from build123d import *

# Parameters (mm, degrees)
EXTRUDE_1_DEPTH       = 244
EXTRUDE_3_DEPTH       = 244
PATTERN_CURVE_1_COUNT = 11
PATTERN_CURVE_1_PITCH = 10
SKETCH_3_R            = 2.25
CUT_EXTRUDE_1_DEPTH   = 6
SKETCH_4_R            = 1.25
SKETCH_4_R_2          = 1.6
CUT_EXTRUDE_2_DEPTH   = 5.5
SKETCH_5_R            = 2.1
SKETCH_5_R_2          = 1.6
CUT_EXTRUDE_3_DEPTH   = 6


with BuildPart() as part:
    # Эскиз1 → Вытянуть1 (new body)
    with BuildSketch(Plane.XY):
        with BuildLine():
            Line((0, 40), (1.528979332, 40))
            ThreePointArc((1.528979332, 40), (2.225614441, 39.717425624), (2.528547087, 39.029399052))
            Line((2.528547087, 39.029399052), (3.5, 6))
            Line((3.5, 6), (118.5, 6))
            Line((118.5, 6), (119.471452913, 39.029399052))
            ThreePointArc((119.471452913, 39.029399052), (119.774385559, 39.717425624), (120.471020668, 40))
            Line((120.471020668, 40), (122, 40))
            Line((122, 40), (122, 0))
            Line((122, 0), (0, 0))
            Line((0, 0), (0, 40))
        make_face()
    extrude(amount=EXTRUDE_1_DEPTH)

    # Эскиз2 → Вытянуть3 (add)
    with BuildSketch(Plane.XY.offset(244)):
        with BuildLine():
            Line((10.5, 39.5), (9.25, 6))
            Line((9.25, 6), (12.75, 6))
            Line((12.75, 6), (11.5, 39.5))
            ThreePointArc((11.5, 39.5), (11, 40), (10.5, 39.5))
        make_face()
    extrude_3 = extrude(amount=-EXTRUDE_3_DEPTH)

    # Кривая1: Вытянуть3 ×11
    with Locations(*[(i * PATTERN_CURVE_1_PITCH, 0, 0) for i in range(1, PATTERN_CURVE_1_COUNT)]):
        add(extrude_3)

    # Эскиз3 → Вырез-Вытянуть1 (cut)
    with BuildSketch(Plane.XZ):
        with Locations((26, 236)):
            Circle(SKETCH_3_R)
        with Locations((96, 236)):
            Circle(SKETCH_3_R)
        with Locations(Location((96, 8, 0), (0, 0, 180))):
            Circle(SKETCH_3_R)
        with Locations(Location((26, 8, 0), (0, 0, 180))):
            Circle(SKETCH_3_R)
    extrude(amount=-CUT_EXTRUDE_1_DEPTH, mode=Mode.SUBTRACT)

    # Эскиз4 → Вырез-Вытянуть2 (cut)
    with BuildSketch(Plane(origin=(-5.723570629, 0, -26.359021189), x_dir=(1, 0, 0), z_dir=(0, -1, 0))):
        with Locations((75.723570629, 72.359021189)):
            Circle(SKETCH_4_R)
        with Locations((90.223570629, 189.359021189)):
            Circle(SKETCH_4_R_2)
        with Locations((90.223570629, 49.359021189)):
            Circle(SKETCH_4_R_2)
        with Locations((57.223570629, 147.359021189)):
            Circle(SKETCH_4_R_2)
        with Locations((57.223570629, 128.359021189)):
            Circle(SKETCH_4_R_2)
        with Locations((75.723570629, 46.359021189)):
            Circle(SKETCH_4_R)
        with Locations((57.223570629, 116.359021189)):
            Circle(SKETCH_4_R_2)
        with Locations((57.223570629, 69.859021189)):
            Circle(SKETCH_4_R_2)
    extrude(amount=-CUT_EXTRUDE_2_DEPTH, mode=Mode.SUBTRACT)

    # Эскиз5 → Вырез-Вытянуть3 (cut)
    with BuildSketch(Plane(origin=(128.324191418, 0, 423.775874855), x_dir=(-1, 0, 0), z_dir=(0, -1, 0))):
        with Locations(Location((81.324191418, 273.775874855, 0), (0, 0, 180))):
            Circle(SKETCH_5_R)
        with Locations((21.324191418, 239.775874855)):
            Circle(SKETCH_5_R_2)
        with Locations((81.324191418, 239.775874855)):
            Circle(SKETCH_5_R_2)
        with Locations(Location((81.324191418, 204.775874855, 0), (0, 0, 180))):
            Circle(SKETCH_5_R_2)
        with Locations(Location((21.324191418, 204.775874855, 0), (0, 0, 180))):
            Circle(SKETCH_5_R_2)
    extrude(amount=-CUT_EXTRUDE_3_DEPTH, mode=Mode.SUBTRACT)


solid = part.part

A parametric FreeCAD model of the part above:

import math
import FreeCAD as App
import Part
import Sketcher

V = App.Vector
Q = App.Units.Quantity

doc = App.newDocument("Part")
body = doc.addObject("PartDesign::Body", "Body")

sketch1 = body.newObject("Sketcher::SketchObject", "Sketch")
sketch1.AttachmentSupport = (doc.getObject("XY_Plane"), [""])
sketch1.MapMode = "FlatFace"
sketch1.addGeometry(Part.LineSegment(V(1.5, 40, 0), V(0, 40, 0)), False)
sketch1.addGeometry(Part.LineSegment(V(0, 40, 0), V(0, 0, 0)), False)
sketch1.addGeometry(Part.LineSegment(V(0, 0, 0), V(122, 0, 0)), False)
sketch1.addGeometry(Part.LineSegment(V(122, 0, 0), V(122, 40, 0)), False)
sketch1.addGeometry(Part.LineSegment(V(122, 40, 0), V(120.5, 40, 0)), False)
sketch1.addGeometry(Part.ArcOfCircle(Part.Circle(V(120.5, 39, 0), V(0, 0, 1), 1), math.radians(90), math.radians(178)), False)
sketch1.addGeometry(Part.LineSegment(V(119.5, 39, 0), V(118.5, 6, 0)), False)
sketch1.addGeometry(Part.LineSegment(V(118.5, 6, 0), V(3.5, 6, 0)), False)
sketch1.addGeometry(Part.LineSegment(V(3.5, 6, 0), V(2.5, 39, 0)), False)
sketch1.addGeometry(Part.ArcOfCircle(Part.Circle(V(1.5, 39, 0), V(0, 0, 1), 1), math.radians(2), math.radians(90)), False)
sketch1.addConstraint(Sketcher.Constraint("Coincident", 0, 2, 1, 1))
sketch1.addConstraint(Sketcher.Constraint("Coincident", 1, 2, 2, 1))
sketch1.addConstraint(Sketcher.Constraint("Coincident", 2, 2, 3, 1))
sketch1.addConstraint(Sketcher.Constraint("Coincident", 3, 2, 4, 1))
sketch1.addConstraint(Sketcher.Constraint("Tangent", 4, 2, 5, 1))
sketch1.addConstraint(Sketcher.Constraint("Tangent", 5, 2, 6, 1))
sketch1.addConstraint(Sketcher.Constraint("Coincident", 6, 2, 7, 1))
sketch1.addConstraint(Sketcher.Constraint("Coincident", 7, 2, 8, 1))
sketch1.addConstraint(Sketcher.Constraint("Tangent", 8, 2, 9, 1))
sketch1.addConstraint(Sketcher.Constraint("Tangent", 9, 2, 0, 1))
sketch1.addConstraint(Sketcher.Constraint("Horizontal", 0))
sketch1.addConstraint(Sketcher.Constraint("Vertical", 1))
sketch1.addConstraint(Sketcher.Constraint("Horizontal", 2))
sketch1.addConstraint(Sketcher.Constraint("Vertical", 3))
sketch1.addConstraint(Sketcher.Constraint("Horizontal", 4))
sketch1.addConstraint(Sketcher.Constraint("Horizontal", 7))
sketch1.addConstraint(Sketcher.Constraint("Coincident", 1, 2, -1, 1))
sketch1.addConstraint(Sketcher.Constraint("Equal", 5, 9))
sketch1.addConstraint(Sketcher.Constraint("Horizontal", 5, 3, 9, 3))
sketch1.addConstraint(Sketcher.Constraint("Horizontal", 5, 2, 8, 2))
sketch1.addConstraint(Sketcher.Constraint("Equal", 0, 4))
sketch1.addConstraint(Sketcher.Constraint("Radius", 5, Q("1 mm")))
sketch1.addConstraint(Sketcher.Constraint("DistanceX", 2, 1, 2, 2, Q("122 mm")))
sketch1.addConstraint(Sketcher.Constraint("DistanceX", 7, 2, 7, 1, Q("115 mm")))
sketch1.addConstraint(Sketcher.Constraint("DistanceY", 1, 2, 1, 1, Q("40 mm")))
sketch1.addConstraint(Sketcher.Constraint("DistanceY", -1, 1, 6, 2, Q("6 mm")))
sketch1.addConstraint(Sketcher.Constraint("DistanceX", 0, 2, 0, 1, Q("1.528979 mm")))
pad1 = body.newObject("PartDesign::Pad", "Pad")
pad1.Profile = sketch1
pad1.Length = 244

sketch2 = body.newObject("Sketcher::SketchObject", "Sketch001")
sketch2.AttachmentSupport = (doc.getObject("XY_Plane"), [""])
sketch2.MapMode = "FlatFace"
sketch2.AttachmentOffset = App.Placement(V(0, 0, 244), App.Rotation())
sketch2.addGeometry(Part.LineSegment(V(10.5, 39.5, 0), V(9.2, 6, 0)), False)
sketch2.addGeometry(Part.LineSegment(V(9.2, 6, 0), V(12.8, 6, 0)), False)
sketch2.addGeometry(Part.LineSegment(V(12.8, 6, 0), V(11.5, 39.5, 0)), False)
sketch2.addGeometry(Part.ArcOfCircle(Part.Circle(V(11, 39.5, 0), V(0, 0, 1), 0.5), math.radians(0), math.radians(180)), False)
sketch2.addConstraint(Sketcher.Constraint("Coincident", 0, 2, 1, 1))
sketch2.addConstraint(Sketcher.Constraint("Coincident", 1, 2, 2, 1))
sketch2.addConstraint(Sketcher.Constraint("Coincident", 2, 2, 3, 1))
sketch2.addConstraint(Sketcher.Constraint("Coincident", 3, 2, 0, 1))
sketch2.addConstraint(Sketcher.Constraint("Horizontal", 1))
sketch2.addConstraint(Sketcher.Constraint("Horizontal", 3, 3, 2, 2))
sketch2.addConstraint(Sketcher.Constraint("Horizontal", 2, 2, 3, 2))
sketch2.addConstraint(Sketcher.Constraint("Equal", 0, 2))
sketch2.addConstraint(Sketcher.Constraint("Radius", 3, Q("0.5 mm")))
sketch2.addConstraint(Sketcher.Constraint("DistanceX", 1, 1, 1, 2, Q("3.5 mm")))
sketch2.addConstraint(Sketcher.Constraint("DistanceX", -1, 1, 3, 3, Q("11 mm")))
sketch2.addConstraint(Sketcher.Constraint("DistanceY", -1, 1, 0, 2, Q("6 mm")))
sketch2.addConstraint(Sketcher.Constraint("DistanceY", -1, 1, 3, 3, Q("39.5 mm")))
pad2 = body.newObject("PartDesign::Pad", "Pad001")
pad2.Profile = sketch2
pad2.Length = 244
pad2.Reversed = True
doc.recompute()

linearpattern = body.newObject("PartDesign::LinearPattern", "LinearPattern")
linearpattern.Originals = [pad2]
linearpattern.Direction = (doc.getObject("X_Axis"), [""])
linearpattern.Mode = "offset"
linearpattern.Offset = 10
linearpattern.Occurrences = 11
body.Tip = linearpattern

sketch3 = body.newObject("Sketcher::SketchObject", "Sketch002")
sketch3.AttachmentSupport = (doc.getObject("XZ_Plane"), [""])
sketch3.MapMode = "FlatFace"
sketch3.addGeometry(Part.Circle(V(26, 236, 0), V(0, 0, 1), 2.2), False)
sketch3.addGeometry(Part.Circle(V(96, 236, 0), V(0, 0, 1), 2.2), False)
sketch3.addGeometry(Part.Circle(V(96, 8, 0), V(0, 0, 1), 2.2), False)
sketch3.addGeometry(Part.Circle(V(26, 8, 0), V(0, 0, 1), 2.2), False)
sketch3.addConstraint(Sketcher.Constraint("Equal", 0, 1))
sketch3.addConstraint(Sketcher.Constraint("Equal", 1, 2))
sketch3.addConstraint(Sketcher.Constraint("Equal", 2, 3))
sketch3.addConstraint(Sketcher.Constraint("Horizontal", 0, 3, 1, 3))
sketch3.addConstraint(Sketcher.Constraint("Horizontal", 2, 3, 3, 3))
sketch3.addConstraint(Sketcher.Constraint("Vertical", 1, 3, 2, 3))
sketch3.addConstraint(Sketcher.Constraint("Vertical", 0, 3, 3, 3))
sketch3.addConstraint(Sketcher.Constraint("Diameter", 0, Q("4.5 mm")))
sketch3.addConstraint(Sketcher.Constraint("DistanceX", -1, 1, 0, 3, Q("26 mm")))
sketch3.addConstraint(Sketcher.Constraint("DistanceY", -1, 1, 0, 3, Q("236 mm")))
sketch3.addConstraint(Sketcher.Constraint("DistanceX", -1, 1, 1, 3, Q("96 mm")))
sketch3.addConstraint(Sketcher.Constraint("DistanceY", -1, 1, 2, 3, Q("8 mm")))
pocket1 = body.newObject("PartDesign::Pocket", "Pocket")
pocket1.Profile = sketch3
pocket1.Length = 6

sketch4 = body.newObject("Sketcher::SketchObject", "Sketch003")
sketch4.AttachmentSupport = (doc.getObject("XZ_Plane"), [""])
sketch4.MapMode = "FlatFace"
sketch4.addGeometry(Part.Circle(V(70, 46, 0), V(0, 0, 1), 1.2), False)
sketch4.addGeometry(Part.Circle(V(84.5, 163, 0), V(0, 0, 1), 1.6), False)
sketch4.addGeometry(Part.Circle(V(84.5, 23, 0), V(0, 0, 1), 1.6), False)
sketch4.addGeometry(Part.Circle(V(51.5, 121, 0), V(0, 0, 1), 1.6), False)
sketch4.addGeometry(Part.Circle(V(51.5, 102, 0), V(0, 0, 1), 1.6), False)
sketch4.addGeometry(Part.Circle(V(70, 20, 0), V(0, 0, 1), 1.2), False)
sketch4.addGeometry(Part.Circle(V(51.5, 90, 0), V(0, 0, 1), 1.6), False)
sketch4.addGeometry(Part.Circle(V(51.5, 43.5, 0), V(0, 0, 1), 1.6), False)
sketch4.addConstraint(Sketcher.Constraint("Equal", 1, 2))
sketch4.addConstraint(Sketcher.Constraint("Equal", 2, 3))
sketch4.addConstraint(Sketcher.Constraint("Equal", 3, 4))
sketch4.addConstraint(Sketcher.Constraint("Equal", 0, 5))
sketch4.addConstraint(Sketcher.Constraint("Equal", 4, 6))
sketch4.addConstraint(Sketcher.Constraint("Equal", 6, 7))
sketch4.addConstraint(Sketcher.Constraint("Vertical", 1, 3, 2, 3))
sketch4.addConstraint(Sketcher.Constraint("Vertical", 3, 3, 4, 3))
sketch4.addConstraint(Sketcher.Constraint("Vertical", 0, 3, 5, 3))
sketch4.addConstraint(Sketcher.Constraint("Vertical", 4, 3, 6, 3))
sketch4.addConstraint(Sketcher.Constraint("Vertical", 6, 3, 7, 3))
sketch4.addConstraint(Sketcher.Constraint("Diameter", 0, Q("2.5 mm")))
sketch4.addConstraint(Sketcher.Constraint("Diameter", 1, Q("3.2 mm")))
sketch4.addConstraint(Sketcher.Constraint("DistanceX", -1, 1, 0, 3, Q("70 mm")))
sketch4.addConstraint(Sketcher.Constraint("DistanceY", -1, 1, 0, 3, Q("46 mm")))
sketch4.addConstraint(Sketcher.Constraint("DistanceY", -1, 1, 1, 3, Q("163 mm")))
sketch4.addConstraint(Sketcher.Constraint("DistanceY", -1, 1, 2, 3, Q("23 mm")))
sketch4.addConstraint(Sketcher.Constraint("DistanceY", -1, 1, 3, 3, Q("121 mm")))
sketch4.addConstraint(Sketcher.Constraint("DistanceY", -1, 1, 4, 3, Q("102 mm")))
sketch4.addConstraint(Sketcher.Constraint("DistanceY", -1, 1, 5, 3, Q("20 mm")))
sketch4.addConstraint(Sketcher.Constraint("DistanceY", -1, 1, 6, 3, Q("90 mm")))
sketch4.addConstraint(Sketcher.Constraint("DistanceX", 3, 3, 1, 3, Q("33 mm")))
sketch4.addConstraint(Sketcher.Constraint("DistanceX", -1, 1, 1, 3, Q("84.5 mm")))
sketch4.addConstraint(Sketcher.Constraint("DistanceY", -1, 1, 7, 3, Q("43.5 mm")))
pocket2 = body.newObject("PartDesign::Pocket", "Pocket001")
pocket2.Profile = sketch4
pocket2.Length = 5.5

sketch5 = body.newObject("Sketcher::SketchObject", "Sketch004")
sketch5.AttachmentSupport = (doc.getObject("XZ_Plane"), [""])
sketch5.MapMode = "FlatFace"
sketch5.addGeometry(Part.Circle(V(47, 150, 0), V(0, 0, 1), 2.1), False)
sketch5.addGeometry(Part.Circle(V(107, 184, 0), V(0, 0, 1), 1.6), False)
sketch5.addGeometry(Part.Circle(V(47, 184, 0), V(0, 0, 1), 1.6), False)
sketch5.addGeometry(Part.Circle(V(47, 219, 0), V(0, 0, 1), 1.6), False)
sketch5.addGeometry(Part.Circle(V(107, 219, 0), V(0, 0, 1), 1.6), False)
sketch5.addConstraint(Sketcher.Constraint("Equal", 1, 2))
sketch5.addConstraint(Sketcher.Constraint("Equal", 2, 3))
sketch5.addConstraint(Sketcher.Constraint("Equal", 3, 4))
sketch5.addConstraint(Sketcher.Constraint("Horizontal", 1, 3, 2, 3))
sketch5.addConstraint(Sketcher.Constraint("Horizontal", 3, 3, 4, 3))
sketch5.addConstraint(Sketcher.Constraint("Vertical", 0, 3, 2, 3))
sketch5.addConstraint(Sketcher.Constraint("Vertical", 2, 3, 3, 3))
sketch5.addConstraint(Sketcher.Constraint("Vertical", 1, 3, 4, 3))
sketch5.addConstraint(Sketcher.Constraint("Diameter", 0, Q("4.2 mm")))
sketch5.addConstraint(Sketcher.Constraint("Diameter", 1, Q("3.2 mm")))
sketch5.addConstraint(Sketcher.Constraint("DistanceX", -1, 1, 0, 3, Q("47 mm")))
sketch5.addConstraint(Sketcher.Constraint("DistanceY", -1, 1, 0, 3, Q("150 mm")))
sketch5.addConstraint(Sketcher.Constraint("DistanceX", -1, 1, 1, 3, Q("107 mm")))
sketch5.addConstraint(Sketcher.Constraint("DistanceY", -1, 1, 1, 3, Q("184 mm")))
sketch5.addConstraint(Sketcher.Constraint("DistanceY", -1, 1, 3, 3, Q("219 mm")))
pocket3 = body.newObject("PartDesign::Pocket", "Pocket002")
pocket3.Profile = sketch5
pocket3.Length = 6

doc.recompute()
